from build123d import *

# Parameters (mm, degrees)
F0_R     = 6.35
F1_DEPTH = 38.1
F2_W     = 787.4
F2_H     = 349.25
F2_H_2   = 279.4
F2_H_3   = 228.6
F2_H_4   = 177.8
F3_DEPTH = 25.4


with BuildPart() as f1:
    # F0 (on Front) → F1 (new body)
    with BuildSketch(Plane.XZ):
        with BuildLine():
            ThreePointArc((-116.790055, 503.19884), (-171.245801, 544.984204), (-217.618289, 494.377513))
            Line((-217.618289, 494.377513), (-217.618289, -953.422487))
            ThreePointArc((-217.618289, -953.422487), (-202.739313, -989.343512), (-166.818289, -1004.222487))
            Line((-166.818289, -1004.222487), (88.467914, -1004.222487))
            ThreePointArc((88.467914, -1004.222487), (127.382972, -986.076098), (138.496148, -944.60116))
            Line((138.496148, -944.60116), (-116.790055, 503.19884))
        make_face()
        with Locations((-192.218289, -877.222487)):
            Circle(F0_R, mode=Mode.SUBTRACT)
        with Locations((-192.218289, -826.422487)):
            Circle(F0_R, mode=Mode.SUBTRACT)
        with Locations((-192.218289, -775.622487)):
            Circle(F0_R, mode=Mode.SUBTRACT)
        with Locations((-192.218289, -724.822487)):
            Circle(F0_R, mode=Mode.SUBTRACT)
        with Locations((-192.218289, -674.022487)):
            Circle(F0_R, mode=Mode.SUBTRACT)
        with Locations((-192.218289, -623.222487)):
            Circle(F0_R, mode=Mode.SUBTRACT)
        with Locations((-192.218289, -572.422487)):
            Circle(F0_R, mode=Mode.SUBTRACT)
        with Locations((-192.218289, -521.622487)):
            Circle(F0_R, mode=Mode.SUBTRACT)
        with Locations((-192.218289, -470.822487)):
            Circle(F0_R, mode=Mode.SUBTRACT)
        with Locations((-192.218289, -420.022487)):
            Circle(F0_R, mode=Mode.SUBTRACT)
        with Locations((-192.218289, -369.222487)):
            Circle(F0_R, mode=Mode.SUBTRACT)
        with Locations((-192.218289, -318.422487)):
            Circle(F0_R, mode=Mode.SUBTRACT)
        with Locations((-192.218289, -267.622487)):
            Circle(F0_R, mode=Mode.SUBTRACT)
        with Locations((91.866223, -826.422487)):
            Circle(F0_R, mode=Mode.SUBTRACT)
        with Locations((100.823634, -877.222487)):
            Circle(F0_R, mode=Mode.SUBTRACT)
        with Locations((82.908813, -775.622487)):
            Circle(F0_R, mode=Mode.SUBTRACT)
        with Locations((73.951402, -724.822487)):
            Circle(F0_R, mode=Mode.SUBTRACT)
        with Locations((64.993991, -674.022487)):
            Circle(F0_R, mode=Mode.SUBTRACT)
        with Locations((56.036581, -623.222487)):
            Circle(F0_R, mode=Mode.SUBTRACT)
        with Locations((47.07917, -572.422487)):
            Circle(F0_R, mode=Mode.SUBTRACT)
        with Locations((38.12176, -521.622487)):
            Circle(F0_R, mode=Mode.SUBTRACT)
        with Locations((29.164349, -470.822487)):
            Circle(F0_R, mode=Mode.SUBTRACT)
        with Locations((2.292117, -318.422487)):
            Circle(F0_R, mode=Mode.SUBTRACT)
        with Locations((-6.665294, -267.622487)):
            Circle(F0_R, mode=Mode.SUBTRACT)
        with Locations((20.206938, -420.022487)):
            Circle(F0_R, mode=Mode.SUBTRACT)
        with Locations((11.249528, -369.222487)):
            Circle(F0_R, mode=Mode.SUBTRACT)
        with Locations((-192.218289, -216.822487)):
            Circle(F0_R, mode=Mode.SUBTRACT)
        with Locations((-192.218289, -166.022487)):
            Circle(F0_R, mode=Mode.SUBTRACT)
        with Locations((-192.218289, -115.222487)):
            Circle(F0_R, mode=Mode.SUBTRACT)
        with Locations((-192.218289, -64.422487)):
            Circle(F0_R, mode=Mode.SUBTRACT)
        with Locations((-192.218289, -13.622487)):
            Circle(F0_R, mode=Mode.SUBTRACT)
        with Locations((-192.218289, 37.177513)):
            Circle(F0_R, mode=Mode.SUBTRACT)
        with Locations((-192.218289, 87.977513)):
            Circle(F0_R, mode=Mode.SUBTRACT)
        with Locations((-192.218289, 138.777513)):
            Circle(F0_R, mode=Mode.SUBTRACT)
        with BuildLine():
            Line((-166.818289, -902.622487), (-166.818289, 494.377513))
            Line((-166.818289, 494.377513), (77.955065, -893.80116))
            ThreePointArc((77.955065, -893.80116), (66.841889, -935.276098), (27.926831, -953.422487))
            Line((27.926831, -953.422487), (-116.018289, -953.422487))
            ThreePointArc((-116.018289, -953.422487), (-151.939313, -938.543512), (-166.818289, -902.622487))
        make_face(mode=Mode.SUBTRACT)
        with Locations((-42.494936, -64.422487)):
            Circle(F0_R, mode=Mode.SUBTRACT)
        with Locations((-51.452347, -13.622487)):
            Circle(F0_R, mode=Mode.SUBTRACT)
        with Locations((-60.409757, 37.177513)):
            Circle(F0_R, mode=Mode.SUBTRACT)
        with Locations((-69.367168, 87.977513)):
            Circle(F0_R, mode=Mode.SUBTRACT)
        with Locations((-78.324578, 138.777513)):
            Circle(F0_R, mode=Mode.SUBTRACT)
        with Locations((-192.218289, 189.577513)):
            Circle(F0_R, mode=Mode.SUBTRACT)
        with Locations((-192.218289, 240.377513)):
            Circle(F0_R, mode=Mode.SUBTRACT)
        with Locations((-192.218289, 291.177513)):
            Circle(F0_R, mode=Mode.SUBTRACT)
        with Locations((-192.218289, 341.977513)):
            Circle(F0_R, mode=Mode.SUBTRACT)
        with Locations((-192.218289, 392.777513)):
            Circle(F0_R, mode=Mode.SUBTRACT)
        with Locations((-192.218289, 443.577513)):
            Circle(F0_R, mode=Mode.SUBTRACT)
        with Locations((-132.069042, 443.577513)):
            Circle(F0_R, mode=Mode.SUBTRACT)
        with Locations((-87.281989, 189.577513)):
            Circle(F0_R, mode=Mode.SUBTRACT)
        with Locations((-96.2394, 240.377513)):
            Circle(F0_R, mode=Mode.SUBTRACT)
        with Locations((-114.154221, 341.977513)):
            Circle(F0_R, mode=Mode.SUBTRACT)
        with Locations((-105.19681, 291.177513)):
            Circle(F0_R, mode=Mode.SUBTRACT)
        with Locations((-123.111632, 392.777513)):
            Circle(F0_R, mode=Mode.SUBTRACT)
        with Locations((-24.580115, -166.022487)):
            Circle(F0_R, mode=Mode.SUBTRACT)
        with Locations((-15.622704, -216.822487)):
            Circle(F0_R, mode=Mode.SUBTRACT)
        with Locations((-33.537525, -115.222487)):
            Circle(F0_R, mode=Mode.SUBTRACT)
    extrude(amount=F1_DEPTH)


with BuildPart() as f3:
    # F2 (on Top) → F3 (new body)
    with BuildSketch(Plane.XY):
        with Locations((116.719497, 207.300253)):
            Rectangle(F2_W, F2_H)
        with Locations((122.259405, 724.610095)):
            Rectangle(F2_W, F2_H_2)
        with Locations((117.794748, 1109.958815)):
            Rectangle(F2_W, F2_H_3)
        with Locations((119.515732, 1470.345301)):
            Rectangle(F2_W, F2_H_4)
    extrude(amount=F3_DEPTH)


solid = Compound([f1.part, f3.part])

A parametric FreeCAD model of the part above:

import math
import FreeCAD as App
import Part
import Sketcher
from FreeCAD import Vector
Q = App.Units.Quantity

doc = App.newDocument("Part")
body = doc.addObject("PartDesign::Body", "Body")

# Sketch on XZ plane
sketch1 = doc.addObject("Sketcher::SketchObject", "Sketch")
body.addObject(sketch1)
sketch1.AttachmentSupport = (doc.XZ_Plane, [""])
sketch1.MapMode = "FlatFace"
sketch1.addGeometry([
    Part.ArcOfCircle(Part.Circle(Vector(-167, 494, 0), Vector(0, 0, 1), 51), math.radians(10), math.radians(180)),  # 0
    Part.LineSegment(Vector(-218, 494, 0), Vector(-218, -953, 0)),  # 1
    Part.ArcOfCircle(Part.Circle(Vector(-167, -953, 0), Vector(0, 0, 1), 51), math.radians(180), math.radians(270)),  # 2
    Part.LineSegment(Vector(-167, -1004, 0), Vector(88, -1004, 0)),  # 3
    Part.ArcOfCircle(Part.Circle(Vector(88, -953, 0), Vector(0, 0, 1), 51), math.radians(-90), math.radians(10)),  # 4
    Part.LineSegment(Vector(138, -945, 0), Vector(-117, 503, 0)),  # 5
    Part.Circle(Vector(-192, -877, 0), Vector(0, 0, 1), 6),  # 6
    Part.Circle(Vector(-192, -826, 0), Vector(0, 0, 1), 6),  # 7
    Part.Circle(Vector(-192, -776, 0), Vector(0, 0, 1), 6),  # 8
    Part.Circle(Vector(-192, -725, 0), Vector(0, 0, 1), 6),  # 9
    Part.Circle(Vector(-192, -674, 0), Vector(0, 0, 1), 6),  # 10
    Part.Circle(Vector(-192, -623, 0), Vector(0, 0, 1), 6),  # 11
    Part.Circle(Vector(-192, -572, 0), Vector(0, 0, 1), 6),  # 12
    Part.Circle(Vector(-192, -522, 0), Vector(0, 0, 1), 6),  # 13
    Part.Circle(Vector(-192, -471, 0), Vector(0, 0, 1), 6),  # 14
    Part.Circle(Vector(-192, -420, 0), Vector(0, 0, 1), 6),  # 15
    Part.Circle(Vector(-192, -369, 0), Vector(0, 0, 1), 6),  # 16
    Part.Circle(Vector(-192, -318, 0), Vector(0, 0, 1), 6),  # 17
    Part.Circle(Vector(-192, -268, 0), Vector(0, 0, 1), 6),  # 18
    Part.Circle(Vector(101, -877, 0), Vector(0, 0, 1), 6),  # 19
    Part.Circle(Vector(83, -776, 0), Vector(0, 0, 1), 6),  # 20
    Part.Circle(Vector(92, -826, 0), Vector(0, 0, 1), 6),  # 21
    Part.Circle(Vector(65, -674, 0), Vector(0, 0, 1), 6),  # 22
    Part.Circle(Vector(56, -623, 0), Vector(0, 0, 1), 6),  # 23
    Part.Circle(Vector(74, -725, 0), Vector(0, 0, 1), 6),  # 24
    Part.Circle(Vector(29, -471, 0), Vector(0, 0, 1), 6),  # 25
    Part.Circle(Vector(20, -420, 0), Vector(0, 0, 1), 6),  # 26
    Part.Circle(Vector(11, -369, 0), Vector(0, 0, 1), 6),  # 27
    Part.Circle(Vector(2, -318, 0), Vector(0, 0, 1), 6),  # 28
    Part.Circle(Vector(-7, -268, 0), Vector(0, 0, 1), 6),  # 29
    Part.Circle(Vector(47, -572, 0), Vector(0, 0, 1), 6),  # 30
    Part.Circle(Vector(38, -522, 0), Vector(0, 0, 1), 6),  # 31
    Part.Circle(Vector(-192, -217, 0), Vector(0, 0, 1), 6),  # 32
    Part.Circle(Vector(-192, -166, 0), Vector(0, 0, 1), 6),  # 33
    Part.Circle(Vector(-192, -115, 0), Vector(0, 0, 1), 6),  # 34
    Part.Circle(Vector(-192, -64, 0), Vector(0, 0, 1), 6),  # 35
    Part.Circle(Vector(-192, -14, 0), Vector(0, 0, 1), 6),  # 36
    Part.Circle(Vector(-192, 37, 0), Vector(0, 0, 1), 6),  # 37
    Part.Circle(Vector(-192, 88, 0), Vector(0, 0, 1), 6),  # 38
    Part.Circle(Vector(-51, -14, 0), Vector(0, 0, 1), 6),  # 39
    Part.Circle(Vector(-60, 37, 0), Vector(0, 0, 1), 6),  # 40
    Part.Circle(Vector(-69, 88, 0), Vector(0, 0, 1), 6),  # 41
    Part.Circle(Vector(-192, 139, 0), Vector(0, 0, 1), 6),  # 42
    Part.Circle(Vector(-192, 190, 0), Vector(0, 0, 1), 6),  # 43
    Part.Circle(Vector(-192, 240, 0), Vector(0, 0, 1), 6),  # 44
    Part.Circle(Vector(-192, 291, 0), Vector(0, 0, 1), 6),  # 45
    Part.Circle(Vector(-192, 342, 0), Vector(0, 0, 1), 6),  # 46
    Part.Circle(Vector(-192, 393, 0), Vector(0, 0, 1), 6),  # 47
    Part.Circle(Vector(-192, 444, 0), Vector(0, 0, 1), 6),  # 48
    Part.Circle(Vector(-123, 393, 0), Vector(0, 0, 1), 6),  # 49
    Part.Circle(Vector(-132, 444, 0), Vector(0, 0, 1), 6),  # 50
    Part.Circle(Vector(-87, 190, 0), Vector(0, 0, 1), 6),  # 51
    Part.Circle(Vector(-105, 291, 0), Vector(0, 0, 1), 6),  # 52
    Part.Circle(Vector(-96, 240, 0), Vector(0, 0, 1), 6),  # 53
    Part.Circle(Vector(-78, 139, 0), Vector(0, 0, 1), 6),  # 54
    Part.Circle(Vector(-114, 342, 0), Vector(0, 0, 1), 6),  # 55
    Part.ArcOfCircle(Part.Circle(Vector(-116, -903, 0), Vector(0, 0, 1), 51), math.radians(180), math.radians(270)),  # 56
    Part.LineSegment(Vector(-167, -903, 0), Vector(-167, 494, 0)),  # 57
    Part.LineSegment(Vector(-167, 494, 0), Vector(78, -894, 0)),  # 58
    Part.ArcOfCircle(Part.Circle(Vector(28, -903, 0), Vector(0, 0, 1), 51), math.radians(-90), math.radians(10)),  # 59
    Part.LineSegment(Vector(28, -953, 0), Vector(-116, -953, 0)),  # 60
    Part.Circle(Vector(-16, -217, 0), Vector(0, 0, 1), 6),  # 61
    Part.Circle(Vector(-25, -166, 0), Vector(0, 0, 1), 6),  # 62
    Part.Circle(Vector(-34, -115, 0), Vector(0, 0, 1), 6),  # 63
    Part.Circle(Vector(-42, -64, 0), Vector(0, 0, 1), 6),  # 64
], False)
sketch1.addConstraint([
    Sketcher.Constraint("Tangent", 0, 2, 1, 1),
    Sketcher.Constraint("Tangent", 1, 2, 2, 1),
    Sketcher.Constraint("Tangent", 2, 2, 3, 1),
    Sketcher.Constraint("Tangent", 3, 2, 4, 1),
    Sketcher.Constraint("Tangent", 4, 2, 5, 1),
    Sketcher.Constraint("Tangent", 5, 2, 0, 1),
    Sketcher.Constraint("Tangent", 56, 1, 57, 1),
    Sketcher.Constraint("Coincident", 57, 2, 58, 1),
    Sketcher.Constraint("Tangent", 58, 2, 59, 2),
    Sketcher.Constraint("Tangent", 59, 1, 60, 1),
    Sketcher.Constraint("Tangent", 60, 2, 56, 2),
    Sketcher.Constraint("Vertical", 1),
    Sketcher.Constraint("Horizontal", 3),
    Sketcher.Constraint("Vertical", 57),
    Sketcher.Constraint("Horizontal", 60),
    Sketcher.Constraint("Coincident", 57, 2, 0, 3),
    Sketcher.Constraint("Equal", 0, 2),
    Sketcher.Constraint("Equal", 2, 4),
    Sketcher.Constraint("Equal", 6, 7),
    Sketcher.Constraint("Equal", 7, 8),
    Sketcher.Constraint("Equal", 8, 9),
    Sketcher.Constraint("Equal", 9, 10),
    Sketcher.Constraint("Equal", 10, 11),
    Sketcher.Constraint("Equal", 11, 12),
    Sketcher.Constraint("Equal", 12, 13),
    Sketcher.Constraint("Equal", 13, 14),
    Sketcher.Constraint("Equal", 14, 15),
    Sketcher.Constraint("Equal", 15, 16),
    Sketcher.Constraint("Equal", 16, 17),
    Sketcher.Constraint("Equal", 17, 18),
    Sketcher.Constraint("Equal", 18, 19),
    Sketcher.Constraint("Equal", 19, 20),
    Sketcher.Constraint("Equal", 20, 21),
    Sketcher.Constraint("Equal", 21, 22),
    Sketcher.Constraint("Equal", 22, 23),
    Sketcher.Constraint("Equal", 23, 24),
    Sketcher.Constraint("Equal", 24, 25),
    Sketcher.Constraint("Equal", 25, 26),
    Sketcher.Constraint("Equal", 26, 27),
    Sketcher.Constraint("Equal", 27, 28),
    Sketcher.Constraint("Equal", 28, 29),
    Sketcher.Constraint("Equal", 29, 30),
    Sketcher.Constraint("Equal", 30, 31),
    Sketcher.Constraint("Equal", 31, 32),
    Sketcher.Constraint("Equal", 32, 33),
    Sketcher.Constraint("Equal", 33, 34),
    Sketcher.Constraint("Equal", 34, 35),
    Sketcher.Constraint("Equal", 35, 36),
    Sketcher.Constraint("Equal", 36, 37),
    Sketcher.Constraint("Equal", 37, 38),
    Sketcher.Constraint("Equal", 38, 39),
    Sketcher.Constraint("Equal", 39, 40),
    Sketcher.Constraint("Equal", 40, 41),
    Sketcher.Constraint("Equal", 41, 42),
    Sketcher.Constraint("Equal", 42, 43),
    Sketcher.Constraint("Equal", 43, 44),
    Sketcher.Constraint("Equal", 44, 45),
    Sketcher.Constraint("Equal", 45, 46),
    Sketcher.Constraint("Equal", 46, 47),
    Sketcher.Constraint("Equal", 47, 48),
    Sketcher.Constraint("Equal", 48, 49),
    Sketcher.Constraint("Equal", 49, 50),
    Sketcher.Constraint("Equal", 50, 51),
    Sketcher.Constraint("Equal", 51, 52),
    Sketcher.Constraint("Equal", 52, 53),
    Sketcher.Constraint("Equal", 53, 54),
    Sketcher.Constraint("Equal", 54, 55),
    Sketcher.Constraint("Equal", 4, 56),
    Sketcher.Constraint("Equal", 56, 59),
    Sketcher.Constraint("Equal", 55, 61),
    Sketcher.Constraint("Equal", 61, 62),
    Sketcher.Constraint("Equal", 62, 63),
    Sketcher.Constraint("Equal", 63, 64),
    Sketcher.Constraint("Parallel", 5, 58),
    Sketcher.Constraint("Horizontal", 6, 3, 19, 3),
    Sketcher.Constraint("Horizontal", 8, 3, 20, 3),
    Sketcher.Constraint("Horizontal", 7, 3, 21, 3),
    Sketcher.Constraint("Horizontal", 10, 3, 22, 3),
    Sketcher.Constraint("Horizontal", 11, 3, 23, 3),
    Sketcher.Constraint("Horizontal", 9, 3, 24, 3),
    Sketcher.Constraint("Horizontal", 14, 3, 25, 3),
    Sketcher.Constraint("Horizontal", 15, 3, 26, 3),
    Sketcher.Constraint("Horizontal", 16, 3, 27, 3),
    Sketcher.Constraint("Horizontal", 17, 3, 28, 3),
    Sketcher.Constraint("Horizontal", 18, 3, 29, 3),
    Sketcher.Constraint("Horizontal", 12, 3, 30, 3),
    Sketcher.Constraint("Horizontal", 13, 3, 31, 3),
    Sketcher.Constraint("Horizontal", 36, 3, 39, 3),
    Sketcher.Constraint("Horizontal", 37, 3, 40, 3),
    Sketcher.Constraint("Horizontal", 38, 3, 41, 3),
    Sketcher.Constraint("Horizontal", 47, 3, 49, 3),
    Sketcher.Constraint("Horizontal", 48, 3, 50, 3),
    Sketcher.Constraint("Horizontal", 43, 3, 51, 3),
    Sketcher.Constraint("Horizontal", 45, 3, 52, 3),
    Sketcher.Constraint("Horizontal", 44, 3, 53, 3),
    Sketcher.Constraint("Horizontal", 42, 3, 54, 3),
    Sketcher.Constraint("Horizontal", 46, 3, 55, 3),
    Sketcher.Constraint("Horizontal", 32, 3, 61, 3),
    Sketcher.Constraint("Horizontal", 33, 3, 62, 3),
    Sketcher.Constraint("Horizontal", 34, 3, 63, 3),
    Sketcher.Constraint("Horizontal", 35, 3, 64, 3),
    Sketcher.Constraint("Horizontal", 1, 2, 59, 1),
    Sketcher.Constraint("Vertical", 6, 3, 7, 3),
    Sketcher.Constraint("Vertical", 7, 3, 8, 3),
    Sketcher.Constraint("Vertical", 8, 3, 9, 3),
    Sketcher.Constraint("Vertical", 9, 3, 10, 3),
    Sketcher.Constraint("Vertical", 10, 3, 11, 3),
    Sketcher.Constraint("Vertical", 11, 3, 12, 3),
    Sketcher.Constraint("Vertical", 12, 3, 13, 3),
    Sketcher.Constraint("Vertical", 13, 3, 14, 3),
    Sketcher.Constraint("Vertical", 14, 3, 15, 3),
    Sketcher.Constraint("Vertical", 15, 3, 16, 3),
    Sketcher.Constraint("Vertical", 16, 3, 17, 3),
    Sketcher.Constraint("Vertical", 17, 3, 18, 3),
    Sketcher.Constraint("Vertical", 18, 3, 32, 3),
    Sketcher.Constraint("Vertical", 32, 3, 33, 3),
    Sketcher.Constraint("Vertical", 33, 3, 34, 3),
    Sketcher.Constraint("Vertical", 34, 3, 35, 3),
    Sketcher.Constraint("Vertical", 35, 3, 36, 3),
    Sketcher.Constraint("Vertical", 36, 3, 37, 3),
    Sketcher.Constraint("Vertical", 37, 3, 38, 3),
    Sketcher.Constraint("Vertical", 38, 3, 42, 3),
    Sketcher.Constraint("Vertical", 42, 3, 43, 3),
    Sketcher.Constraint("Vertical", 43, 3, 44, 3),
    Sketcher.Constraint("Vertical", 44, 3, 45, 3),
    Sketcher.Constraint("Vertical", 45, 3, 46, 3),
    Sketcher.Constraint("Vertical", 46, 3, 47, 3),
    Sketcher.Constraint("Vertical", 47, 3, 48, 3),
    Sketcher.Constraint("Radius", 0, Q("2 in")),
    Sketcher.Constraint("Diameter", 6, Q("0.5 in")),
    Sketcher.Constraint("DistanceY", 1, 2, 1, 1, Q("57 in")),
    Sketcher.Constraint("Angle", 5, Q("100 deg")),
    Sketcher.Constraint("DistanceX", -1, 1, 24, 3, Q("73.951402 mm")),
    Sketcher.Constraint("DistanceX", 53, 3, -1, 1, Q("96.2394 mm")),
    Sketcher.Constraint("DistanceX", 0, 3, -1, 1, Q("166.818289 mm")),
    Sketcher.Constraint("DistanceX", 6, 3, -1, 1, Q("192.218289 mm")),
    Sketcher.Constraint("DistanceX", -1, 1, 22, 3, Q("64.993991 mm")),
    Sketcher.Constraint("DistanceX", -1, 1, 23, 3, Q("56.036581 mm")),
    Sketcher.Constraint("DistanceX", -1, 1, 25, 3, Q("29.164349 mm")),
    Sketcher.Constraint("DistanceX", -1, 1, 26, 3, Q("20.206938 mm")),
    Sketcher.Constraint("DistanceX", -1, 1, 30, 3, Q("47.07917 mm")),
    Sketcher.Constraint("DistanceX", -1, 1, 31, 3, Q("38.12176 mm")),
    Sketcher.Constraint("DistanceX", 41, 3, -1, 1, Q("69.367168 mm")),
    Sketcher.Constraint("DistanceX", 49, 3, -1, 1, Q("123.111632 mm")),
    Sketcher.Constraint("DistanceX", 50, 3, -1, 1, Q("132.069042 mm")),
    Sketcher.Constraint("DistanceX", 51, 3, -1, 1, Q("87.281989 mm")),
    Sketcher.Constraint("DistanceX", 52, 3, -1, 1, Q("105.19681 mm")),
    Sketcher.Constraint("DistanceX", 54, 3, -1, 1, Q("78.324578 mm")),
    Sketcher.Constraint("DistanceX", 55, 3, -1, 1, Q("114.154221 mm")),
    Sketcher.Constraint("DistanceY", 4, 2, -1, 1, Q("944.60116 mm")),
    Sketcher.Constraint("DistanceY", 6, 3, -1, 1, Q("877.222487 mm")),
    Sketcher.Constraint("DistanceY", 7, 3, -1, 1, Q("826.422487 mm")),
    Sketcher.Constraint("DistanceY", 8, 3, -1, 1, Q("775.622487 mm")),
    Sketcher.Constraint("DistanceY", 9, 3, -1, 1, Q("724.822487 mm")),
    Sketcher.Constraint("DistanceY", 10, 3, -1, 1, Q("674.022487 mm")),
    Sketcher.Constraint("DistanceY", 11, 3, -1, 1, Q("623.222487 mm")),
    Sketcher.Constraint("DistanceY", 12, 3, -1, 1, Q("572.422487 mm")),
    Sketcher.Constraint("DistanceY", 13, 3, -1, 1, Q("521.622487 mm")),
    Sketcher.Constraint("DistanceY", 14, 3, -1, 1, Q("470.822487 mm")),
    Sketcher.Constraint("DistanceY", 15, 3, -1, 1, Q("420.022487 mm")),
    Sketcher.Constraint("DistanceY", 16, 3, -1, 1, Q("369.222487 mm")),
    Sketcher.Constraint("DistanceY", 17, 3, -1, 1, Q("318.422487 mm")),
    Sketcher.Constraint("DistanceY", 18, 3, -1, 1, Q("267.622487 mm")),
    Sketcher.Constraint("DistanceX", -1, 1, 19, 3, Q("100.823634 mm")),
    Sketcher.Constraint("DistanceX", -1, 1, 20, 3, Q("82.908813 mm")),
    Sketcher.Constraint("DistanceX", -1, 1, 21, 3, Q("91.866223 mm")),
    Sketcher.Constraint("DistanceX", -1, 1, 27, 3, Q("11.249528 mm")),
    Sketcher.Constraint("DistanceX", -1, 1, 28, 3, Q("2.292117 mm")),
    Sketcher.Constraint("DistanceX", 29, 3, -1, 1, Q("6.665294 mm")),
    Sketcher.Constraint("DistanceY", 32, 3, -1, 1, Q("216.822487 mm")),
    Sketcher.Constraint("DistanceY", 33, 3, -1, 1, Q("166.022487 mm")),
    Sketcher.Constraint("DistanceY", 34, 3, -1, 1, Q("115.222487 mm")),
    Sketcher.Constraint("DistanceY", 35, 3, -1, 1, Q("64.422487 mm")),
    Sketcher.Constraint("DistanceY", 36, 3, -1, 1, Q("13.622487 mm")),
    Sketcher.Constraint("DistanceY", -1, 1, 37, 3, Q("37.177513 mm")),
    Sketcher.Constraint("DistanceY", -1, 1, 38, 3, Q("87.977513 mm")),
    Sketcher.Constraint("DistanceX", 39, 3, -1, 1, Q("51.452347 mm")),
    Sketcher.Constraint("DistanceX", 40, 3, -1, 1, Q("60.409757 mm")),
    Sketcher.Constraint("DistanceY", -1, 1, 42, 3, Q("138.777513 mm")),
    Sketcher.Constraint("DistanceY", -1, 1, 43, 3, Q("189.577513 mm")),
    Sketcher.Constraint("DistanceY", -1, 1, 44, 3, Q("240.377513 mm")),
    Sketcher.Constraint("DistanceY", -1, 1, 45, 3, Q("291.177513 mm")),
    Sketcher.Constraint("DistanceY", -1, 1, 46, 3, Q("341.977513 mm")),
    Sketcher.Constraint("DistanceY", -1, 1, 47, 3, Q("392.777513 mm")),
    Sketcher.Constraint("DistanceY", -1, 1, 48, 3, Q("443.577513 mm")),
    Sketcher.Constraint("DistanceX", 61, 3, -1, 1, Q("15.622704 mm")),
    Sketcher.Constraint("DistanceX", 62, 3, -1, 1, Q("24.580115 mm")),
    Sketcher.Constraint("DistanceX", 63, 3, -1, 1, Q("33.537525 mm")),
    Sketcher.Constraint("DistanceX", 64, 3, -1, 1, Q("42.494936 mm")),
])
pad1 = doc.addObject("PartDesign::Pad", "Pad")
body.addObject(pad1)
pad1.Profile = sketch1
pad1.Length = Q("1.5 in")
body2 = doc.addObject("PartDesign::Body", "Body001")
body2.AllowCompound = True

# Sketch on XY plane
sketch2 = doc.addObject("Sketcher::SketchObject", "Sketch001")
body2.addObject(sketch2)
sketch2.AttachmentSupport = (doc.getObject("XY_Plane001"), [""])
sketch2.MapMode = "FlatFace"
sketch2.addGeometry([
    Part.LineSegment(Vector(-277, 382, 0), Vector(-277, 33, 0)),  # 0
    Part.LineSegment(Vector(-277, 33, 0), Vector(510, 33, 0)),  # 1
    Part.LineSegment(Vector(510, 33, 0), Vector(510, 382, 0)),  # 2
    Part.LineSegment(Vector(510, 382, 0), Vector(-277, 382, 0)),  # 3
    Part.LineSegment(Vector(-271, 864, 0), Vector(-271, 585, 0)),  # 4
    Part.LineSegment(Vector(-271, 585, 0), Vector(516, 585, 0)),  # 5
    Part.LineSegment(Vector(516, 585, 0), Vector(516, 864, 0)),  # 6
    Part.LineSegment(Vector(516, 864, 0), Vector(-271, 864, 0)),  # 7
    Part.LineSegment(Vector(-276, 1224, 0), Vector(-276, 996, 0)),  # 8
    Part.LineSegment(Vector(-276, 996, 0), Vector(511, 996, 0)),  # 9
    Part.LineSegment(Vector(511, 996, 0), Vector(511, 1224, 0)),  # 10
    Part.LineSegment(Vector(511, 1224, 0), Vector(-276, 1224, 0)),  # 11
    Part.LineSegment(Vector(-274, 1559, 0), Vector(-274, 1381, 0)),  # 12
    Part.LineSegment(Vector(-274, 1381, 0), Vector(513, 1381, 0)),  # 13
    Part.LineSegment(Vector(513, 1381, 0), Vector(513, 1559, 0)),  # 14
    Part.LineSegment(Vector(513, 1559, 0), Vector(-274, 1559, 0)),  # 15
], False)
sketch2.addConstraint([
    Sketcher.Constraint("Coincident", 0, 2, 1, 1),
    Sketcher.Constraint("Coincident", 1, 2, 2, 1),
    Sketcher.Constraint("Coincident", 2, 2, 3, 1),
    Sketcher.Constraint("Coincident", 3, 2, 0, 1),
    Sketcher.Constraint("Coincident", 4, 2, 5, 1),
    Sketcher.Constraint("Coincident", 5, 2, 6, 1),
    Sketcher.Constraint("Coincident", 6, 2, 7, 1),
    Sketcher.Constraint("Coincident", 7, 2, 4, 1),
    Sketcher.Constraint("Coincident", 8, 2, 9, 1),
    Sketcher.Constraint("Coincident", 9, 2, 10, 1),
    Sketcher.Constraint("Coincident", 10, 2, 11, 1),
    Sketcher.Constraint("Coincident", 11, 2, 8, 1),
    Sketcher.Constraint("Coincident", 12, 2, 13, 1),
    Sketcher.Constraint("Coincident", 13, 2, 14, 1),
    Sketcher.Constraint("Coincident", 14, 2, 15, 1),
    Sketcher.Constraint("Coincident", 15, 2, 12, 1),
    Sketcher.Constraint("Vertical", 0),
    Sketcher.Constraint("Horizontal", 1),
    Sketcher.Constraint("Vertical", 2),
    Sketcher.Constraint("Horizontal", 3),
    Sketcher.Constraint("Vertical", 4),
    Sketcher.Constraint("Horizontal", 5),
    Sketcher.Constraint("Vertical", 6),
    Sketcher.Constraint("Horizontal", 7),
    Sketcher.Constraint("Vertical", 8),
    Sketcher.Constraint("Horizontal", 9),
    Sketcher.Constraint("Vertical", 10),
    Sketcher.Constraint("Horizontal", 11),
    Sketcher.Constraint("Vertical", 12),
    Sketcher.Constraint("Horizontal", 13),
    Sketcher.Constraint("Vertical", 14),
    Sketcher.Constraint("Horizontal", 15),
    Sketcher.Constraint("Equal", 3, 5),
    Sketcher.Constraint("Equal", 7, 9),
    Sketcher.Constraint("Equal", 11, 13),
    Sketcher.Constraint("DistanceX", 1, 1, 1, 2, Q("31 in")),
    Sketcher.Constraint("DistanceY", 4, 2, 4, 1, Q("11 in")),
    Sketcher.Constraint("DistanceY", 8, 2, 8, 1, Q("9 in")),
    Sketcher.Constraint("DistanceY", 12, 2, 12, 1, Q("7 in")),
    Sketcher.Constraint("DistanceY", 0, 2, 0, 1, Q("13.75 in")),
    Sketcher.Constraint("DistanceY", -1, 1, 12, 2, Q("1381.445301 mm")),
    Sketcher.Constraint("DistanceX", 8, 2, -1, 1, Q("275.905252 mm")),
    Sketcher.Constraint("DistanceX", -1, 1, 13, 2, Q("513.215732 mm")),
    Sketcher.Constraint("DistanceX", 3, 2, 4, 2, Q("5.539908 mm")),
    Sketcher.Constraint("DistanceY", 3, 2, 4, 2, Q("202.984842 mm")),
    Sketcher.Constraint("DistanceY", 7, 2, 8, 2, Q("131.34872 mm")),
    Sketcher.Constraint("DistanceX", 3, 2, 8, 2, Q("1.075251 mm")),
    Sketcher.Constraint("DistanceY", -1, 1, 0, 2, Q("32.675253 mm")),
])
pad2 = doc.addObject("PartDesign::Pad", "Pad001")
body2.addObject(pad2)
pad2.Profile = sketch2
pad2.Length = Q("1 in")

doc.recompute()
